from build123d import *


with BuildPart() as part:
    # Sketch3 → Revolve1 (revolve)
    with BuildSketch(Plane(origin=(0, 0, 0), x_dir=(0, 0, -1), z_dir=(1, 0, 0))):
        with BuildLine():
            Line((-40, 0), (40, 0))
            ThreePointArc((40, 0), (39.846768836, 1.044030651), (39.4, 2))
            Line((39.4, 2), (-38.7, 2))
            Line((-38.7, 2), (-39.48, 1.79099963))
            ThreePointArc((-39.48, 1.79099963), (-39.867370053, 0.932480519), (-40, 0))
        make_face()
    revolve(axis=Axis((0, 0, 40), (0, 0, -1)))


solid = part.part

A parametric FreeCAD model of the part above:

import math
import FreeCAD as App
import Part
import Sketcher
from FreeCAD import Vector
Q = App.Units.Quantity

doc = App.newDocument("Part")
params = doc.addObject("Spreadsheet::Sheet", "Params")
for row, (alias, value) in enumerate([
    ("sketch1_height", "80 mm"),
    ("sketch1_height2", "78.1 mm"),
    ("revolution_angle", "360 deg"),
], start=1):
    params.set(f"A{row}", alias)
    params.set(f"B{row}", "=" + value)
    params.setAlias(f"B{row}", alias)

body = doc.addObject("PartDesign::Body", "Body")

# Sketch on YZ plane
sketch1 = doc.addObject("Sketcher::SketchObject", "Sketch")
body.addObject(sketch1)
sketch1.AttachmentSupport = (doc.YZ_Plane, [""])
sketch1.MapMode = "FlatFace"
sketch1.addGeometry([
    Part.LineSegment(Vector(0, 40, 0), Vector(0, -40, 0)),  # 0
    Part.ArcOfCircle(Part.Circle(Vector(0, -36.366667, 0), Vector(0, 0, 1), 3.633333), math.radians(-90), math.radians(-56.601512)),  # 1
    Part.LineSegment(Vector(2, -39.4, 0), Vector(2, 38.7, 0)),  # 2
    Part.LineSegment(Vector(2, 38.7, 0), Vector(1.791, 39.48, 0)),  # 3
    Part.ArcOfCircle(Part.Circle(Vector(0, 36.655693, 0), Vector(0, 0, 1), 3.344307), math.radians(57.619678), math.radians(90)),  # 4
], False)
sketch1.addConstraint([
    Sketcher.Constraint("Coincident", 0, 2, 1, 1),
    Sketcher.Constraint("Coincident", 1, 2, 2, 1),
    Sketcher.Constraint("Coincident", 2, 2, 3, 1),
    Sketcher.Constraint("Coincident", 3, 2, 4, 1),
    Sketcher.Constraint("Coincident", 4, 2, 0, 1),
    Sketcher.Constraint("Vertical", 0),
    Sketcher.Constraint("Vertical", 2),
    Sketcher.Constraint("Symmetric", 0, 2, 4, 2, -1, 1),
    Sketcher.Constraint("PointOnObject", 1, 3, -2),
    Sketcher.Constraint("PointOnObject", 4, 3, -2),
    Sketcher.Constraint("DistanceY", 0, 2, 0, 1, Q("80 mm")),
    Sketcher.Constraint("Angle", 3, Q("105 deg")),
    Sketcher.Constraint("DistanceY", 2, 1, 2, 2, Q("78.1 mm")),
    Sketcher.Constraint("DistanceX", -1, 1, 1, 2, Q("2 mm")),
    Sketcher.Constraint("DistanceY", 1, 2, -1, 1, Q("39.4 mm")),
    Sketcher.Constraint("DistanceY", -1, 1, 3, 2, Q("39.48 mm")),
])
sketch1.setExpression("Constraints[10]", "Params.sketch1_height")
sketch1.setExpression("Constraints[12]", "Params.sketch1_height2")
revolution = doc.addObject("PartDesign::Revolution", "Revolution")
body.addObject(revolution)
revolution.Profile = sketch1
revolution.ReferenceAxis = (sketch1, ["V_Axis"])
revolution.setExpression("Angle", "Params.revolution_angle")

doc.recompute()
